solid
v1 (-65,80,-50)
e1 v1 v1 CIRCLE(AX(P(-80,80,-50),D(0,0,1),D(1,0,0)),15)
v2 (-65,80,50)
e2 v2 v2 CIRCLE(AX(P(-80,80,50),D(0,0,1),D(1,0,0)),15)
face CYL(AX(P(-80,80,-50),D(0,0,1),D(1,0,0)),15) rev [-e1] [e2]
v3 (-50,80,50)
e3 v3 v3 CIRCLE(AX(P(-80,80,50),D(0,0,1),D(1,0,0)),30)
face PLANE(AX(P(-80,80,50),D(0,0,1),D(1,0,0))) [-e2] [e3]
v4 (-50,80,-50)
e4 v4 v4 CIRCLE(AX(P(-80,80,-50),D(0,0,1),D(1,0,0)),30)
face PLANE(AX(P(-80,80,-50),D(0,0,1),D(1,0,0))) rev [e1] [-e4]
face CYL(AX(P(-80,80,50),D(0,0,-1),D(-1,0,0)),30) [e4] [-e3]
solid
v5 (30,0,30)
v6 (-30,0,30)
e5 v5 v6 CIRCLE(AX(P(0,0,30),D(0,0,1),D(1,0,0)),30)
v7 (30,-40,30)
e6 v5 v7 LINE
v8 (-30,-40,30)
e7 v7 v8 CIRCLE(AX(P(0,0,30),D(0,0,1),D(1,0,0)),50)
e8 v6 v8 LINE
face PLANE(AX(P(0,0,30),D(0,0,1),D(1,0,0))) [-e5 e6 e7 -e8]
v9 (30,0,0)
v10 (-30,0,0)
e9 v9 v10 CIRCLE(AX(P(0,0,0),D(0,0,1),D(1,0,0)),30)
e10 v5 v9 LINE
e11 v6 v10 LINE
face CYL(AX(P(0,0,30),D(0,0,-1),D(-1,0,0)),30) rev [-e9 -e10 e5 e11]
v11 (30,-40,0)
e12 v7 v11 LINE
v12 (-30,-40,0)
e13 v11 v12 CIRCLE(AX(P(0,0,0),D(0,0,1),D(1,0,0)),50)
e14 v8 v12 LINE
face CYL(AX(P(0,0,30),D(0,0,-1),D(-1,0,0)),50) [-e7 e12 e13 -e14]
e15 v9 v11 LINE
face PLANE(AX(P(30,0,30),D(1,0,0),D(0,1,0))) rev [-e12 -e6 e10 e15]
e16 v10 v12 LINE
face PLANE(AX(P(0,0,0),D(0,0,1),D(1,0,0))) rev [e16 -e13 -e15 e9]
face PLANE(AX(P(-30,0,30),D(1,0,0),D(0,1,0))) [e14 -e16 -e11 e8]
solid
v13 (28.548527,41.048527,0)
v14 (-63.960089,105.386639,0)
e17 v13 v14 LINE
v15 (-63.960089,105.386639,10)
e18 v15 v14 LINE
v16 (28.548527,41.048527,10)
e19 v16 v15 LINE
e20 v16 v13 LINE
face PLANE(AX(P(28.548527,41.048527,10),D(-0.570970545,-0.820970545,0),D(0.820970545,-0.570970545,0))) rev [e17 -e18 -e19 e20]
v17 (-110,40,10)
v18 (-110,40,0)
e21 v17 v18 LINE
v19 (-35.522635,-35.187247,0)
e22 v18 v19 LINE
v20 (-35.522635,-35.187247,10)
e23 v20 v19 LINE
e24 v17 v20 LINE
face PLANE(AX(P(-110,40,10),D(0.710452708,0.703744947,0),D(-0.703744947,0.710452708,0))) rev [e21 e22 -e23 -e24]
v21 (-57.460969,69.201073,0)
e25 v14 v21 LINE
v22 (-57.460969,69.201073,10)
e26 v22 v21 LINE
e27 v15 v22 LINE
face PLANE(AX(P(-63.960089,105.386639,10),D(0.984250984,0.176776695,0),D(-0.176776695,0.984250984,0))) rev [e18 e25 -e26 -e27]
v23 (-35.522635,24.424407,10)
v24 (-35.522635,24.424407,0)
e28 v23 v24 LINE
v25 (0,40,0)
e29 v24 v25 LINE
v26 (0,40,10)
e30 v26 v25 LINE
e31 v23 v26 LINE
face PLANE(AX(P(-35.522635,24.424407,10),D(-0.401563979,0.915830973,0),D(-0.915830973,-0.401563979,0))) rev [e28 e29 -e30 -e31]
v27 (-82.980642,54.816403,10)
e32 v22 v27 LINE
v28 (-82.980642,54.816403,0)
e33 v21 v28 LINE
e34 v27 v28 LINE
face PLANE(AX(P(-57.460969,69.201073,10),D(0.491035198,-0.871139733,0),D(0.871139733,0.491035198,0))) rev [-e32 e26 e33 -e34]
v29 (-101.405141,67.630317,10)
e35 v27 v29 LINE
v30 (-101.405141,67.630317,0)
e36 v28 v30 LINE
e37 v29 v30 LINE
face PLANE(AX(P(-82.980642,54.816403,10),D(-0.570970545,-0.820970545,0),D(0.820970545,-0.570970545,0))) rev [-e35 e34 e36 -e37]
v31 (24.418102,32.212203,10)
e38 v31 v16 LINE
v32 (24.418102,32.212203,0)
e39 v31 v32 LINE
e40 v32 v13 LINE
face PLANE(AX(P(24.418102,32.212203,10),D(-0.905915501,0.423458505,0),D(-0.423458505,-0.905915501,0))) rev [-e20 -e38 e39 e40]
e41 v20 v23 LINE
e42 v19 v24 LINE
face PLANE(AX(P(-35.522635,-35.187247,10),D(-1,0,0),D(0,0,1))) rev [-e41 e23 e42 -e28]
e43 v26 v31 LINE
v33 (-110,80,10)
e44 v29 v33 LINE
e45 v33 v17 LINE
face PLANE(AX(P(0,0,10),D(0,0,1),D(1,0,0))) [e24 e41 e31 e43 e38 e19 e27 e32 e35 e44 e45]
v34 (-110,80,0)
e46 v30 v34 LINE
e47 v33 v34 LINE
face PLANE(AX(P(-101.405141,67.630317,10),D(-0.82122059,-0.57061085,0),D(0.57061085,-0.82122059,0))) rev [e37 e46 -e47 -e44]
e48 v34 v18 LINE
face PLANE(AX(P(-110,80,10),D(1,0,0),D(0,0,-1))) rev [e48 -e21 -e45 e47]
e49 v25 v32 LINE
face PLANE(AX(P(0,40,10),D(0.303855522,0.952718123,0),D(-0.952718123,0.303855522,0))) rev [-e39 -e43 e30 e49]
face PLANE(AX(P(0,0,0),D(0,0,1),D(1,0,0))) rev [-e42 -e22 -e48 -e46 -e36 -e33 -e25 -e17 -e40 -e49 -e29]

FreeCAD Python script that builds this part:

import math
import FreeCAD as App
import Part
import Sketcher
from FreeCAD import Vector
Q = App.Units.Quantity


def add_polygon(sketch, points):
    """Adds a closed chain of lines whose ends are joined by coincident constraints."""
    first, n = sketch.GeometryCount, len(points)
    for a, b in zip(points, points[1:] + points[:1]):
        sketch.addGeometry(Part.LineSegment(App.Vector(*a, 0), App.Vector(*b, 0)), False)
    for i in range(n):
        sketch.addConstraint(Sketcher.Constraint("Coincident", first + i, 2, first + (i + 1) % n, 1))

doc = App.newDocument("Part")
body = doc.addObject("PartDesign::Body", "Body")

sketch1 = body.newObject("Sketcher::SketchObject", "Sketch")
sketch1.AttachmentSupport = (doc.getObject("XY_Plane"), [""])
sketch1.MapMode = "FlatFace"
sketch1.addGeometry(Part.LineSegment(Vector(-30, -40, 0), Vector(-30, 0, 0)), False)
sketch1.addGeometry(Part.ArcOfCircle(Part.Circle(Vector(0, 0, 0), Vector(0, 0, 1), 30), math.radians(0), math.radians(180)), False)
sketch1.addGeometry(Part.LineSegment(Vector(30, 0, 0), Vector(30, -40, 0)), False)
sketch1.addGeometry(Part.ArcOfCircle(Part.Circle(Vector(0, 0, 0), Vector(0, 0, 1), 50), math.radians(-53.130102), math.radians(233.130102)), False)
sketch1.addConstraint(Sketcher.Constraint("Tangent", 0, 2, 1, 2))
sketch1.addConstraint(Sketcher.Constraint("Tangent", 1, 1, 2, 1))
sketch1.addConstraint(Sketcher.Constraint("Coincident", 2, 2, 3, 1))
sketch1.addConstraint(Sketcher.Constraint("Coincident", 3, 2, 0, 1))
sketch1.addConstraint(Sketcher.Constraint("Vertical", 0))
sketch1.addConstraint(Sketcher.Constraint("Vertical", 2))
sketch1.addConstraint(Sketcher.Constraint("Coincident", 1, 3, -1, 1))
sketch1.addConstraint(Sketcher.Constraint("Coincident", 3, 3, -1, 1))
sketch1.addConstraint(Sketcher.Constraint("Radius", 1, Q("30 mm")))
sketch1.addConstraint(Sketcher.Constraint("Radius", 3, Q("50 mm")))
pad1 = body.newObject("PartDesign::Pad", "Pad")
pad1.Profile = sketch1
pad1.Length = 30
body2 = doc.addObject("PartDesign::Body", "Body001")

sketch2 = body2.newObject("Sketcher::SketchObject", "Sketch001")
sketch2.AttachmentSupport = (doc.getObject("XY_Plane001"), [""])
sketch2.MapMode = "FlatFace"
sketch2.addGeometry(Part.Circle(Vector(-80, 80, 0), Vector(0, 0, 1), 30), False)
sketch2.addConstraint(Sketcher.Constraint("Diameter", 0, Q("60 mm")))
sketch2.addConstraint(Sketcher.Constraint("DistanceX", 0, 3, -1, 1, Q("80 mm")))
sketch2.addConstraint(Sketcher.Constraint("DistanceY", -1, 1, 0, 3, Q("80 mm")))
pad2 = body2.newObject("PartDesign::Pad", "Pad001")
pad2.Profile = sketch2
pad2.Length = 100
pad2.Midplane = True

sketch3 = body2.newObject("Sketcher::SketchObject", "Sketch002")
sketch3.AttachmentSupport = (doc.getObject("XY_Plane001"), [""])
sketch3.MapMode = "FlatFace"
sketch3.addGeometry(Part.Circle(Vector(-80, 80, 0), Vector(0, 0, 1), 15), False)
sketch3.addConstraint(Sketcher.Constraint("Diameter", 0, Q("30 mm")))
sketch3.addConstraint(Sketcher.Constraint("DistanceX", 0, 3, -1, 1, Q("80 mm")))
sketch3.addConstraint(Sketcher.Constraint("DistanceY", -1, 1, 0, 3, Q("80 mm")))
pocket1 = body2.newObject("PartDesign::Pocket", "Pocket")
pocket1.Profile = sketch3
pocket1.Length = 100
pocket1.Midplane = True
body3 = doc.addObject("PartDesign::Body", "Body002")

sketch4 = body3.newObject("Sketcher::SketchObject", "Sketch003")
sketch4.AttachmentSupport = (doc.getObject("XY_Plane002"), [""])
sketch4.MapMode = "FlatFace"
add_polygon(sketch4, [(-110, 80), (-110, 40), (-35.522635, -35.187247), (-35.522635, 24.424407), (0, 40), (24.418102, 32.212203), (28.548527, 41.048527), (-63.960089, 105.386639), (-57.460969, 69.201073), (-82.980642, 54.816403), (-101.405141, 67.630317)])
sketch4.addConstraint(Sketcher.Constraint("Vertical", 0))
sketch4.addConstraint(Sketcher.Constraint("Vertical", 2))
sketch4.addConstraint(Sketcher.Constraint("PointOnObject", 3, 2, -2))
sketch4.addConstraint(Sketcher.Constraint("Parallel", 6, 9))
sketch4.addConstraint(Sketcher.Constraint("Horizontal", 0, 2, 3, 2))
sketch4.addConstraint(Sketcher.Constraint("DistanceY", 0, 2, 0, 1, Q("40 mm")))
sketch4.addConstraint(Sketcher.Constraint("DistanceX", 0, 2, -1, 1, Q("110 mm")))
sketch4.addConstraint(Sketcher.Constraint("DistanceY", -1, 1, 0, 2, Q("40 mm")))
sketch4.addConstraint(Sketcher.Constraint("DistanceX", -1, 1, 4, 2, Q("24.418102 mm")))
sketch4.addConstraint(Sketcher.Constraint("DistanceX", 9, 2, 8, 2, Q("18.424498 mm")))
sketch4.addConstraint(Sketcher.Constraint("Distance", 7, Q("36.764572 mm")))
sketch4.addConstraint(Sketcher.Constraint("Distance", 8, Q("29.294581 mm")))
sketch4.addConstraint(Sketcher.Constraint("Distance", 10, Q("15.062558 mm")))
sketch4.addConstraint(Sketcher.Constraint("DistanceY", 2, 1, 2, 2, Q("59.611654 mm")))
sketch4.addConstraint(Sketcher.Constraint("DistanceX", 6, 2, -1, 1, Q("63.960089 mm")))
sketch4.addConstraint(Sketcher.Constraint("DistanceY", -1, 1, 6, 2, Q("105.386639 mm")))
sketch4.addConstraint(Sketcher.Constraint("DistanceX", 7, 2, -1, 1, Q("57.460969 mm")))
sketch4.addConstraint(Sketcher.Constraint("DistanceX", 9, 2, -1, 1, Q("101.405141 mm")))
sketch4.addConstraint(Sketcher.Constraint("DistanceY", 1, 2, 4, 2, Q("67.399451 mm")))
sketch4.addConstraint(Sketcher.Constraint("DistanceY", 2, 2, 5, 2, Q("16.624121 mm")))
sketch4.addConstraint(Sketcher.Constraint("DistanceY", 5, 2, 6, 2, Q("64.338112 mm")))
sketch4.addConstraint(Sketcher.Constraint("Distance", 1, Q("105.830052 mm")))
pad3 = body3.newObject("PartDesign::Pad", "Pad002")
pad3.Profile = sketch4
pad3.Length = 10

doc.recompute()
